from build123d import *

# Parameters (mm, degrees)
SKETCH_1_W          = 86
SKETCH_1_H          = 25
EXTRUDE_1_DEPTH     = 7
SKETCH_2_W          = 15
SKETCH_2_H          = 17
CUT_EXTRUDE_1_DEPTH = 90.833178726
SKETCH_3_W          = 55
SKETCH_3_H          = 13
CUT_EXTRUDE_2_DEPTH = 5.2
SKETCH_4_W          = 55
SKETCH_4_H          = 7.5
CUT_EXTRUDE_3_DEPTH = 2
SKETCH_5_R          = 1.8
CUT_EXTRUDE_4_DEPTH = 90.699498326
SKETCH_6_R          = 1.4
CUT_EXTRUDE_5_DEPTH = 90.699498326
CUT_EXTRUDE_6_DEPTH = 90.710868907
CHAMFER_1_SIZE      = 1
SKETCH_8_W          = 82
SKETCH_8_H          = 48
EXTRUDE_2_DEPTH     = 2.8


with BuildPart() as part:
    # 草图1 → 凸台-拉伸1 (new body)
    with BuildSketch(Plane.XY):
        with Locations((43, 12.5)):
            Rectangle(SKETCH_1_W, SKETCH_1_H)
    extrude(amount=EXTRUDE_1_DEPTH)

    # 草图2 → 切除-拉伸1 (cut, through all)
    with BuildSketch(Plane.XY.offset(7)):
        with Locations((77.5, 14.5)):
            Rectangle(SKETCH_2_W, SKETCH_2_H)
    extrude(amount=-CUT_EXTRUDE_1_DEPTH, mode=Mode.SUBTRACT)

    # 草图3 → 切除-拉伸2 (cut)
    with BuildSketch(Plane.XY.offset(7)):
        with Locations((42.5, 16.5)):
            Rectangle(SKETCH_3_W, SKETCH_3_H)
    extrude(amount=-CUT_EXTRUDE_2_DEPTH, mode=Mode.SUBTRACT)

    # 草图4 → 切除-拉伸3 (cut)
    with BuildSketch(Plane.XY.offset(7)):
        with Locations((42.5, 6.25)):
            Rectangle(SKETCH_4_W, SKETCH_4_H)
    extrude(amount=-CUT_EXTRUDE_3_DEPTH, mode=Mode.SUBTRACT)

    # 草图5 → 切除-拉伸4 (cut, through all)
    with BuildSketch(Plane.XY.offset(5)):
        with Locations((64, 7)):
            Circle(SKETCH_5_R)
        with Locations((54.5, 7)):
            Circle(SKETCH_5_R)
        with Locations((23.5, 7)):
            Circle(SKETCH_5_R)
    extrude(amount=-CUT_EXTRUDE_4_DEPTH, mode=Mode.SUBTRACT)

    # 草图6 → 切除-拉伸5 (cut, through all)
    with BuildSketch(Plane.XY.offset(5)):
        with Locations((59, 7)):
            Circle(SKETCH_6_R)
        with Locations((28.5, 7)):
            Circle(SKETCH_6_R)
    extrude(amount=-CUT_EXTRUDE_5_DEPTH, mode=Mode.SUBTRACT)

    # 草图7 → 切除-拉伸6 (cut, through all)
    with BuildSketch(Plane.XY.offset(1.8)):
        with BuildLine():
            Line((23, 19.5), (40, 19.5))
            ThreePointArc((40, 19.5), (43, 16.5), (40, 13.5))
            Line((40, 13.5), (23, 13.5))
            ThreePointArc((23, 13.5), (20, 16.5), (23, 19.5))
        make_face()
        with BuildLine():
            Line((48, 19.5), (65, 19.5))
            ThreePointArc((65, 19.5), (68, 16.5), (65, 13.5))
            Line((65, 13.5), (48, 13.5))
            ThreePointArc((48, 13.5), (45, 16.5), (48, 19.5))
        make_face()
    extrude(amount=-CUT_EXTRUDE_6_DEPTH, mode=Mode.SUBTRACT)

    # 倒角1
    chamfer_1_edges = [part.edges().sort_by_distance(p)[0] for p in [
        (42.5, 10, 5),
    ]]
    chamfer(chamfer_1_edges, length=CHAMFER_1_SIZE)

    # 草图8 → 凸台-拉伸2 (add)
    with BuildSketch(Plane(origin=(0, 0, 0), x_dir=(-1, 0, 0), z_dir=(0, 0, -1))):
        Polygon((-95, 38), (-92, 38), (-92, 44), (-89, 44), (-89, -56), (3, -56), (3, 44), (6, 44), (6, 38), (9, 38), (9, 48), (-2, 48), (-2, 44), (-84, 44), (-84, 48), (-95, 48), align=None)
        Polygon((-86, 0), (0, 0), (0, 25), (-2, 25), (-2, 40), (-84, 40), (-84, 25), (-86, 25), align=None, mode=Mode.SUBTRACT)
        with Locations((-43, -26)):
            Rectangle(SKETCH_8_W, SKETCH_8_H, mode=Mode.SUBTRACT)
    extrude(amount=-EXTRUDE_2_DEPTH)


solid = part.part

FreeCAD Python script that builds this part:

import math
import FreeCAD as App
import Part
import Sketcher
from FreeCAD import Vector


def edges_at(feature, points):
    """Names of the edges that pass closest to the given points."""
    edges = feature.Shape.Edges
    near = lambda p: min(range(len(edges)), key=lambda i: edges[i].distToShape(Part.Vertex(*p))[0])
    return sorted({f"Edge{near(p) + 1}" for p in points})


def add_polygon(sketch, points):
    """Adds a closed chain of lines whose ends are joined by coincident constraints."""
    first, n = sketch.GeometryCount, len(points)
    for a, b in zip(points, points[1:] + points[:1]):
        sketch.addGeometry(Part.LineSegment(App.Vector(*a, 0), App.Vector(*b, 0)), False)
    for i in range(n):
        sketch.addConstraint(Sketcher.Constraint("Coincident", first + i, 2, first + (i + 1) % n, 1))

doc = App.newDocument("Part")
body = doc.addObject("PartDesign::Body", "Body")

# Sketch on XY plane
sketch1 = body.newObject("Sketcher::SketchObject", "Sketch")
sketch1.AttachmentSupport = (doc.getObject("XY_Plane"), [""])
sketch1.MapMode = "FlatFace"
add_polygon(sketch1, [(0, 25), (0, 0), (86, 0), (86, 25)])  # lines 0-3
sketch1.addConstraint(Sketcher.Constraint("Vertical", 0))
sketch1.addConstraint(Sketcher.Constraint("Horizontal", 1))
sketch1.addConstraint(Sketcher.Constraint("Vertical", 2))
sketch1.addConstraint(Sketcher.Constraint("Horizontal", 3))
sketch1.addConstraint(Sketcher.Constraint("Coincident", 0, 2, -1, 1))
sketch1.addConstraint(Sketcher.Constraint("DistanceX", 1, 1, 1, 2, 86.0))
sketch1.addConstraint(Sketcher.Constraint("DistanceY", 0, 2, 0, 1, 25.0))
pad1 = body.newObject("PartDesign::Pad", "Pad")
pad1.Profile = sketch1
pad1.Length = 7

# Sketch on XY plane
sketch2 = body.newObject("Sketcher::SketchObject", "Sketch001")
sketch2.AttachmentSupport = (doc.getObject("XY_Plane"), [""])
sketch2.MapMode = "FlatFace"
sketch2.AttachmentOffset = App.Placement(Vector(0, 0, 7), App.Rotation())
add_polygon(sketch2, [(70, 23), (70, 6), (85, 6), (85, 23)])  # lines 0-3
sketch2.addConstraint(Sketcher.Constraint("Vertical", 0))
sketch2.addConstraint(Sketcher.Constraint("Horizontal", 1))
sketch2.addConstraint(Sketcher.Constraint("Vertical", 2))
sketch2.addConstraint(Sketcher.Constraint("Horizontal", 3))
sketch2.addConstraint(Sketcher.Constraint("DistanceX", 1, 1, 1, 2, 15.0))
sketch2.addConstraint(Sketcher.Constraint("DistanceY", 0, 2, 0, 1, 17.0))
sketch2.addConstraint(Sketcher.Constraint("DistanceX", -1, 1, 0, 2, 70.0))
sketch2.addConstraint(Sketcher.Constraint("DistanceY", -1, 1, 0, 2, 6.0))
pocket1 = body.newObject("PartDesign::Pocket", "Pocket")
pocket1.Profile = sketch2
pocket1.Type = "ThroughAll"

# Sketch on XY plane
sketch3 = body.newObject("Sketcher::SketchObject", "Sketch002")
sketch3.AttachmentSupport = (doc.getObject("XY_Plane"), [""])
sketch3.MapMode = "FlatFace"
sketch3.AttachmentOffset = App.Placement(Vector(0, 0, 7), App.Rotation())
add_polygon(sketch3, [(15, 23), (15, 10), (70, 10), (70, 23)])  # lines 0-3
sketch3.addConstraint(Sketcher.Constraint("Vertical", 0))
sketch3.addConstraint(Sketcher.Constraint("Horizontal", 1))
sketch3.addConstraint(Sketcher.Constraint("Vertical", 2))
sketch3.addConstraint(Sketcher.Constraint("Horizontal", 3))
sketch3.addConstraint(Sketcher.Constraint("DistanceX", 1, 1, 1, 2, 55.0))
sketch3.addConstraint(Sketcher.Constraint("DistanceY", 0, 2, 0, 1, 13.0))
sketch3.addConstraint(Sketcher.Constraint("DistanceX", -1, 1, 0, 2, 15.0))
sketch3.addConstraint(Sketcher.Constraint("DistanceY", -1, 1, 0, 2, 10.0))
pocket2 = body.newObject("PartDesign::Pocket", "Pocket001")
pocket2.Profile = sketch3
pocket2.Length = 5.2

# Sketch on XY plane
sketch4 = body.newObject("Sketcher::SketchObject", "Sketch003")
sketch4.AttachmentSupport = (doc.getObject("XY_Plane"), [""])
sketch4.MapMode = "FlatFace"
sketch4.AttachmentOffset = App.Placement(Vector(0, 0, 7), App.Rotation())
add_polygon(sketch4, [(15, 10), (15, 2), (70, 2), (70, 10)])  # lines 0-3
sketch4.addConstraint(Sketcher.Constraint("Vertical", 0))
sketch4.addConstraint(Sketcher.Constraint("Horizontal", 1))
sketch4.addConstraint(Sketcher.Constraint("Vertical", 2))
sketch4.addConstraint(Sketcher.Constraint("Horizontal", 3))
sketch4.addConstraint(Sketcher.Constraint("DistanceX", 1, 1, 1, 2, 55.0))
sketch4.addConstraint(Sketcher.Constraint("DistanceY", 0, 2, 0, 1, 7.5))
sketch4.addConstraint(Sketcher.Constraint("DistanceX", -1, 1, 0, 2, 15.0))
sketch4.addConstraint(Sketcher.Constraint("DistanceY", -1, 1, 2, 2, 10.0))
pocket3 = body.newObject("PartDesign::Pocket", "Pocket002")
pocket3.Profile = sketch4
pocket3.Length = 2

# Sketch on XY plane
sketch5 = body.newObject("Sketcher::SketchObject", "Sketch004")
sketch5.AttachmentSupport = (doc.getObject("XY_Plane"), [""])
sketch5.MapMode = "FlatFace"
sketch5.AttachmentOffset = App.Placement(Vector(0, 0, 5), App.Rotation())
sketch5.addGeometry(Part.Circle(Vector(64, 7, 0), Vector(0, 0, 1), 1.8), False)
sketch5.addGeometry(Part.Circle(Vector(54.5, 7, 0), Vector(0, 0, 1), 1.8), False)
sketch5.addGeometry(Part.Circle(Vector(23.5, 7, 0), Vector(0, 0, 1), 1.8), False)
sketch5.addConstraint(Sketcher.Constraint("Equal", 0, 1))
sketch5.addConstraint(Sketcher.Constraint("Equal", 1, 2))
sketch5.addConstraint(Sketcher.Constraint("Horizontal", 0, 3, 1, 3))
sketch5.addConstraint(Sketcher.Constraint("Horizontal", 1, 3, 2, 3))
sketch5.addConstraint(Sketcher.Constraint("Diameter", 0, 3.6))
sketch5.addConstraint(Sketcher.Constraint("DistanceX", -1, 1, 0, 3, 64.0))
sketch5.addConstraint(Sketcher.Constraint("DistanceY", -1, 1, 0, 3, 7.0))
sketch5.addConstraint(Sketcher.Constraint("DistanceX", 2, 3, 1, 3, 31.0))
sketch5.addConstraint(Sketcher.Constraint("DistanceX", -1, 1, 1, 3, 54.5))
pocket4 = body.newObject("PartDesign::Pocket", "Pocket003")
pocket4.Profile = sketch5
pocket4.Type = "ThroughAll"

# Sketch on XY plane
sketch6 = body.newObject("Sketcher::SketchObject", "Sketch005")
sketch6.AttachmentSupport = (doc.getObject("XY_Plane"), [""])
sketch6.MapMode = "FlatFace"
sketch6.AttachmentOffset = App.Placement(Vector(0, 0, 5), App.Rotation())
sketch6.addGeometry(Part.Circle(Vector(59, 7, 0), Vector(0, 0, 1), 1.4), False)
sketch6.addGeometry(Part.Circle(Vector(28.5, 7, 0), Vector(0, 0, 1), 1.4), False)
sketch6.addConstraint(Sketcher.Constraint("Equal", 0, 1))
sketch6.addConstraint(Sketcher.Constraint("Horizontal", 0, 3, 1, 3))
sketch6.addConstraint(Sketcher.Constraint("Diameter", 0, 2.8))
sketch6.addConstraint(Sketcher.Constraint("DistanceX", -1, 1, 0, 3, 59.0))
sketch6.addConstraint(Sketcher.Constraint("DistanceY", -1, 1, 0, 3, 7.0))
sketch6.addConstraint(Sketcher.Constraint("DistanceX", -1, 1, 1, 3, 28.5))
pocket5 = body.newObject("PartDesign::Pocket", "Pocket004")
pocket5.Profile = sketch6
pocket5.Type = "ThroughAll"

# Sketch on XY plane
sketch7 = body.newObject("Sketcher::SketchObject", "Sketch006")
sketch7.AttachmentSupport = (doc.getObject("XY_Plane"), [""])
sketch7.MapMode = "FlatFace"
sketch7.AttachmentOffset = App.Placement(Vector(0, 0, 1.8), App.Rotation())
sketch7.addGeometry(Part.LineSegment(Vector(40, 19.5, 0), Vector(23, 19.5, 0)), False)
sketch7.addGeometry(Part.ArcOfCircle(Part.Circle(Vector(23, 16.5, 0), Vector(0, 0, 1), 3), math.radians(90), math.radians(270)), False)
sketch7.addGeometry(Part.LineSegment(Vector(23, 13.5, 0), Vector(40, 13.5, 0)), False)
sketch7.addGeometry(Part.ArcOfCircle(Part.Circle(Vector(40, 16.5, 0), Vector(0, 0, 1), 3), math.radians(-90), math.radians(90)), False)
sketch7.addGeometry(Part.LineSegment(Vector(65, 19.5, 0), Vector(48, 19.5, 0)), False)
sketch7.addGeometry(Part.ArcOfCircle(Part.Circle(Vector(48, 16.5, 0), Vector(0, 0, 1), 3), math.radians(90), math.radians(270)), False)
sketch7.addGeometry(Part.LineSegment(Vector(48, 13.5, 0), Vector(65, 13.5, 0)), False)
sketch7.addGeometry(Part.ArcOfCircle(Part.Circle(Vector(65, 16.5, 0), Vector(0, 0, 1), 3), math.radians(-90), math.radians(90)), False)
sketch7.addConstraint(Sketcher.Constraint("Tangent", 0, 2, 1, 1))
sketch7.addConstraint(Sketcher.Constraint("Tangent", 1, 2, 2, 1))
sketch7.addConstraint(Sketcher.Constraint("Tangent", 2, 2, 3, 1))
sketch7.addConstraint(Sketcher.Constraint("Tangent", 3, 2, 0, 1))
sketch7.addConstraint(Sketcher.Constraint("Tangent", 4, 2, 5, 1))
sketch7.addConstraint(Sketcher.Constraint("Tangent", 5, 2, 6, 1))
sketch7.addConstraint(Sketcher.Constraint("Tangent", 6, 2, 7, 1))
sketch7.addConstraint(Sketcher.Constraint("Tangent", 7, 2, 4, 1))
sketch7.addConstraint(Sketcher.Constraint("Horizontal", 0))
sketch7.addConstraint(Sketcher.Constraint("Horizontal", 2))
sketch7.addConstraint(Sketcher.Constraint("Horizontal", 4))
sketch7.addConstraint(Sketcher.Constraint("Horizontal", 6))
sketch7.addConstraint(Sketcher.Constraint("Equal", 3, 5))
sketch7.addConstraint(Sketcher.Constraint("Horizontal", 3, 3, 5, 3))
sketch7.addConstraint(Sketcher.Constraint("Equal", 2, 4))
sketch7.addConstraint(Sketcher.Constraint("Radius", 1, 3.0))
sketch7.addConstraint(Sketcher.Constraint("DistanceX", 0, 2, 0, 1, 17.0))
sketch7.addConstraint(Sketcher.Constraint("DistanceX", -1, 1, 1, 3, 23.0))
sketch7.addConstraint(Sketcher.Constraint("DistanceX", -1, 1, 5, 3, 48.0))
sketch7.addConstraint(Sketcher.Constraint("DistanceY", -1, 1, 1, 3, 16.5))
pocket6 = body.newObject("PartDesign::Pocket", "Pocket005")
pocket6.Profile = sketch7
pocket6.Type = "ThroughAll"
doc.recompute()

chamfer = body.newObject("PartDesign::Chamfer", "Chamfer")
chamfer.Base = (pocket6, edges_at(pocket6, [(42.5, 10, 5)]))
chamfer.Size = 1

# Sketch on XY plane
sketch8 = body.newObject("Sketcher::SketchObject", "Sketch007")
sketch8.AttachmentSupport = (doc.getObject("XY_Plane"), [""])
sketch8.MapMode = "FlatFace"
add_polygon(sketch8, [(95, 38), (92, 38), (92, 44), (89, 44), (89, -56), (-3, -56), (-3, 44), (-6, 44), (-6, 38), (-9, 38), (-9, 48), (2, 48), (2, 44), (84, 44), (84, 48), (95, 48)])  # lines 0-15
add_polygon(sketch8, [(2, -50), (84, -50), (84, -2), (2, -2)])  # lines 16-19
add_polygon(sketch8, [(0, 0), (86, 0), (86, 25), (84, 25), (84, 40), (2, 40), (2, 25), (0, 25)])  # lines 20-27
sketch8.addConstraint(Sketcher.Constraint("Horizontal", 0))
sketch8.addConstraint(Sketcher.Constraint("Vertical", 1))
sketch8.addConstraint(Sketcher.Constraint("Horizontal", 2))
sketch8.addConstraint(Sketcher.Constraint("Vertical", 3))
sketch8.addConstraint(Sketcher.Constraint("Horizontal", 4))
sketch8.addConstraint(Sketcher.Constraint("Vertical", 5))
sketch8.addConstraint(Sketcher.Constraint("Horizontal", 6))
sketch8.addConstraint(Sketcher.Constraint("Vertical", 7))
sketch8.addConstraint(Sketcher.Constraint("Horizontal", 8))
sketch8.addConstraint(Sketcher.Constraint("Vertical", 9))
sketch8.addConstraint(Sketcher.Constraint("Horizontal", 10))
sketch8.addConstraint(Sketcher.Constraint("Vertical", 11))
sketch8.addConstraint(Sketcher.Constraint("Horizontal", 12))
sketch8.addConstraint(Sketcher.Constraint("Vertical", 13))
sketch8.addConstraint(Sketcher.Constraint("Horizontal", 14))
sketch8.addConstraint(Sketcher.Constraint("Vertical", 15))
sketch8.addConstraint(Sketcher.Constraint("Horizontal", 16))
sketch8.addConstraint(Sketcher.Constraint("Vertical", 17))
sketch8.addConstraint(Sketcher.Constraint("Horizontal", 18))
sketch8.addConstraint(Sketcher.Constraint("Vertical", 19))
sketch8.addConstraint(Sketcher.Constraint("Horizontal", 20))
sketch8.addConstraint(Sketcher.Constraint("Vertical", 21))
sketch8.addConstraint(Sketcher.Constraint("Horizontal", 22))
sketch8.addConstraint(Sketcher.Constraint("Vertical", 23))
sketch8.addConstraint(Sketcher.Constraint("Horizontal", 24))
sketch8.addConstraint(Sketcher.Constraint("Vertical", 25))
sketch8.addConstraint(Sketcher.Constraint("Horizontal", 26))
sketch8.addConstraint(Sketcher.Constraint("Vertical", 27))
sketch8.addConstraint(Sketcher.Constraint("Coincident", 27, 2, -1, 1))
sketch8.addConstraint(Sketcher.Constraint("Horizontal", 2, 2, 5, 2))
sketch8.addConstraint(Sketcher.Constraint("Horizontal", 0, 2, 7, 2))
sketch8.addConstraint(Sketcher.Constraint("Horizontal", 6, 2, 11, 2))
sketch8.addConstraint(Sketcher.Constraint("Horizontal", 10, 2, 13, 2))
sketch8.addConstraint(Sketcher.Constraint("Horizontal", 22, 2, 25, 2))
sketch8.addConstraint(Sketcher.Constraint("Vertical", 13, 2, 16, 2))
sketch8.addConstraint(Sketcher.Constraint("Vertical", 11, 2, 18, 2))
sketch8.addConstraint(Sketcher.Constraint("Vertical", 17, 2, 22, 2))
sketch8.addConstraint(Sketcher.Constraint("Vertical", 19, 2, 24, 2))
sketch8.addConstraint(Sketcher.Constraint("Equal", 0, 2))
sketch8.addConstraint(Sketcher.Constraint("Equal", 2, 6))
sketch8.addConstraint(Sketcher.Constraint("Equal", 6, 8))
sketch8.addConstraint(Sketcher.Constraint("Equal", 10, 14))
sketch8.addConstraint(Sketcher.Constraint("Equal", 22, 26))
sketch8.addConstraint(Sketcher.Constraint("DistanceX", 0, 2, 0, 1, 3.0))
sketch8.addConstraint(Sketcher.Constraint("DistanceX", 4, 2, 4, 1, 92.0))
sketch8.addConstraint(Sketcher.Constraint("DistanceX", 10, 1, 10, 2, 11.0))
sketch8.addConstraint(Sketcher.Constraint("DistanceX", 20, 1, 20, 2, 86.0))
sketch8.addConstraint(Sketcher.Constraint("DistanceY", 1, 1, 1, 2, 6.0))
sketch8.addConstraint(Sketcher.Constraint("DistanceY", 3, 2, 3, 1, 100.0))
sketch8.addConstraint(Sketcher.Constraint("DistanceY", 9, 1, 9, 2, 10.0))
sketch8.addConstraint(Sketcher.Constraint("DistanceY", 17, 1, 17, 2, 48.0))
sketch8.addConstraint(Sketcher.Constraint("DistanceY", 21, 1, 21, 2, 25.0))
sketch8.addConstraint(Sketcher.Constraint("DistanceY", 23, 1, 23, 2, 15.0))
sketch8.addConstraint(Sketcher.Constraint("DistanceY", -1, 1, 0, 2, 38.0))
sketch8.addConstraint(Sketcher.Constraint("DistanceY", 16, 2, -1, 1, 50.0))
pad2 = body.newObject("PartDesign::Pad", "Pad001")
pad2.Profile = sketch8
pad2.Length = 2.8

doc.recompute()
